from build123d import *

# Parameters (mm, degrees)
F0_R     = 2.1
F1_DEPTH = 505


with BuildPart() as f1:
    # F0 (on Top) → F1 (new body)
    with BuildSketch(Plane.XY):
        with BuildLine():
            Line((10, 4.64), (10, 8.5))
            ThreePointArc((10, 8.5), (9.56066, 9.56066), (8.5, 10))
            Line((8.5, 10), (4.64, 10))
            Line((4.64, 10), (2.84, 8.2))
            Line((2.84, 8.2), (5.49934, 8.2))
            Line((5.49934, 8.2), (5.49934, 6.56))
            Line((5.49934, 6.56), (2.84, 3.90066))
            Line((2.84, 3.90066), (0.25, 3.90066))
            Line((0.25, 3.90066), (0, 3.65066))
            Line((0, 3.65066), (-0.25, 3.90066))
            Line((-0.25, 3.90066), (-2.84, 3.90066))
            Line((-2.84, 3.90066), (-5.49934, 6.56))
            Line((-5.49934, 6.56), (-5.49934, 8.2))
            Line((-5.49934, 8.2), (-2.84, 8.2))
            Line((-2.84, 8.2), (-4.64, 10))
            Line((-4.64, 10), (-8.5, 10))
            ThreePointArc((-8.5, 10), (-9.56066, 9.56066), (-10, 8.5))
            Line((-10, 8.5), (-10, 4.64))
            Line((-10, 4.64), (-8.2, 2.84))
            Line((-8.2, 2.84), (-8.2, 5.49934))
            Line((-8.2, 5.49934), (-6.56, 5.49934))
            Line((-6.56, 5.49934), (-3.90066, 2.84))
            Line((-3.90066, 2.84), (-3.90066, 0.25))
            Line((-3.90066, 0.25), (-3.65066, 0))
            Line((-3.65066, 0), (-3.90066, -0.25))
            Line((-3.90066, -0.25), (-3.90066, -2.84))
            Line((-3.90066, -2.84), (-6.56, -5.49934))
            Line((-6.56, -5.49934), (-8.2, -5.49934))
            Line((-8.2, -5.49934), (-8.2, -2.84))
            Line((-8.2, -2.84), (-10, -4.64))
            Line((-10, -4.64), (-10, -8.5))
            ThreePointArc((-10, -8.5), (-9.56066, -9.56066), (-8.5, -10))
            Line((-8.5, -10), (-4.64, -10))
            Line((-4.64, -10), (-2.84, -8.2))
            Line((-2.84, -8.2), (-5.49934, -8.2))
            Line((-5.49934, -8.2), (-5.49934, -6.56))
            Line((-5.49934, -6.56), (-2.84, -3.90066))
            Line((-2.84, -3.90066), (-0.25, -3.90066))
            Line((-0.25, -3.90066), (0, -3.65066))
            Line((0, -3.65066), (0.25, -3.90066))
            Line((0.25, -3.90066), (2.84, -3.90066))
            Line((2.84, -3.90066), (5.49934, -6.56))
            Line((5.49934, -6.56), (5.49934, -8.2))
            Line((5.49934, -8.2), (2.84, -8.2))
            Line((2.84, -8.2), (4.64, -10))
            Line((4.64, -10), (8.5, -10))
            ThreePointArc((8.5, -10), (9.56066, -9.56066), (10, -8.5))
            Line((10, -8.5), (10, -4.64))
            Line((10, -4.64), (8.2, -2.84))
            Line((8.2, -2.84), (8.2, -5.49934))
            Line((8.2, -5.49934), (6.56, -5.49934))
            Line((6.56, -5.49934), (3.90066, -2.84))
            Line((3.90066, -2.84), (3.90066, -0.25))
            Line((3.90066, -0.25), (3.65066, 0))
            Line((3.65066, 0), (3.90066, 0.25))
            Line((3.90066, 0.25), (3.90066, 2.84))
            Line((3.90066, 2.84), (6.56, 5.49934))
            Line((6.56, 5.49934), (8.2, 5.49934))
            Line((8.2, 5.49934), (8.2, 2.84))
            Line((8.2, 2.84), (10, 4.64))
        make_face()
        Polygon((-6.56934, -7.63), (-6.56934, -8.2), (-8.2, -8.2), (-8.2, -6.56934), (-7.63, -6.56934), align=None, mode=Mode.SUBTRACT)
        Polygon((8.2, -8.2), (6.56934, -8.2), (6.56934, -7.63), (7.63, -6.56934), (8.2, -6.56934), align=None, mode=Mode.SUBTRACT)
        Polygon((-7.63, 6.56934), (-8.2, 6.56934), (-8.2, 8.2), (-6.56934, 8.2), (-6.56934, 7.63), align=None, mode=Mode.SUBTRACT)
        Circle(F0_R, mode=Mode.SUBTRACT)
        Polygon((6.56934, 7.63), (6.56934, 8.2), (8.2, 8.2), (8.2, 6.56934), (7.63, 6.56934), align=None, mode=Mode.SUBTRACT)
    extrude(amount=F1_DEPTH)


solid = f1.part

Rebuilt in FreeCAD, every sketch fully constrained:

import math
import FreeCAD as App
import Part
import Sketcher

V = App.Vector
Q = App.Units.Quantity


def add_polygon(sketch, points):
    """Adds a closed chain of lines whose ends are joined by coincident constraints."""
    first, n = sketch.GeometryCount, len(points)
    for a, b in zip(points, points[1:] + points[:1]):
        sketch.addGeometry(Part.LineSegment(App.Vector(*a, 0), App.Vector(*b, 0)), False)
    for i in range(n):
        sketch.addConstraint(Sketcher.Constraint("Coincident", first + i, 2, first + (i + 1) % n, 1))

doc = App.newDocument("Part")
body = doc.addObject("PartDesign::Body", "Body")

# Sketch on XY plane
sketch1 = body.newObject("Sketcher::SketchObject", "Sketch")
sketch1.AttachmentSupport = (doc.getObject("XY_Plane"), [""])
sketch1.MapMode = "FlatFace"
sketch1.addGeometry(Part.LineSegment(V(10, 4.64, 0), V(10, 8.5, 0)), False)  # 0
sketch1.addGeometry(Part.ArcOfCircle(Part.Circle(V(8.5, 8.5, 0), V(0, 0, 1), 1.5), math.radians(0), math.radians(90)), False)  # 1
sketch1.addGeometry(Part.LineSegment(V(8.5, 10, 0), V(4.64, 10, 0)), False)  # 2
sketch1.addGeometry(Part.LineSegment(V(4.64, 10, 0), V(2.84, 8.2, 0)), False)  # 3
sketch1.addGeometry(Part.LineSegment(V(2.84, 8.2, 0), V(5.5, 8.2, 0)), False)  # 4
sketch1.addGeometry(Part.LineSegment(V(5.5, 8.2, 0), V(5.5, 6.56, 0)), False)  # 5
sketch1.addGeometry(Part.LineSegment(V(5.5, 6.56, 0), V(2.84, 3.9, 0)), False)  # 6
sketch1.addGeometry(Part.LineSegment(V(2.84, 3.9, 0), V(0.25, 3.9, 0)), False)  # 7
sketch1.addGeometry(Part.LineSegment(V(0.25, 3.9, 0), V(0, 3.65, 0)), False)  # 8
sketch1.addGeometry(Part.LineSegment(V(0, 3.65, 0), V(-0.25, 3.9, 0)), False)  # 9
sketch1.addGeometry(Part.LineSegment(V(-0.25, 3.9, 0), V(-2.84, 3.9, 0)), False)  # 10
sketch1.addGeometry(Part.LineSegment(V(-2.84, 3.9, 0), V(-5.5, 6.56, 0)), False)  # 11
sketch1.addGeometry(Part.LineSegment(V(-5.5, 6.56, 0), V(-5.5, 8.2, 0)), False)  # 12
sketch1.addGeometry(Part.LineSegment(V(-5.5, 8.2, 0), V(-2.84, 8.2, 0)), False)  # 13
sketch1.addGeometry(Part.LineSegment(V(-2.84, 8.2, 0), V(-4.64, 10, 0)), False)  # 14
sketch1.addGeometry(Part.LineSegment(V(-4.64, 10, 0), V(-8.5, 10, 0)), False)  # 15
sketch1.addGeometry(Part.ArcOfCircle(Part.Circle(V(-8.5, 8.5, 0), V(0, 0, 1), 1.5), math.radians(90), math.radians(180)), False)  # 16
sketch1.addGeometry(Part.LineSegment(V(-10, 8.5, 0), V(-10, 4.64, 0)), False)  # 17
sketch1.addGeometry(Part.LineSegment(V(-10, 4.64, 0), V(-8.2, 2.84, 0)), False)  # 18
sketch1.addGeometry(Part.LineSegment(V(-8.2, 2.84, 0), V(-8.2, 5.5, 0)), False)  # 19
sketch1.addGeometry(Part.LineSegment(V(-8.2, 5.5, 0), V(-6.56, 5.5, 0)), False)  # 20
sketch1.addGeometry(Part.LineSegment(V(-6.56, 5.5, 0), V(-3.9, 2.84, 0)), False)  # 21
sketch1.addGeometry(Part.LineSegment(V(-3.9, 2.84, 0), V(-3.9, 0.25, 0)), False)  # 22
sketch1.addGeometry(Part.LineSegment(V(-3.9, 0.25, 0), V(-3.65, 0, 0)), False)  # 23
sketch1.addGeometry(Part.LineSegment(V(-3.65, 0, 0), V(-3.9, -0.25, 0)), False)  # 24
sketch1.addGeometry(Part.LineSegment(V(-3.9, -0.25, 0), V(-3.9, -2.84, 0)), False)  # 25
sketch1.addGeometry(Part.LineSegment(V(-3.9, -2.84, 0), V(-6.56, -5.5, 0)), False)  # 26
sketch1.addGeometry(Part.LineSegment(V(-6.56, -5.5, 0), V(-8.2, -5.5, 0)), False)  # 27
sketch1.addGeometry(Part.LineSegment(V(-8.2, -5.5, 0), V(-8.2, -2.84, 0)), False)  # 28
sketch1.addGeometry(Part.LineSegment(V(-8.2, -2.84, 0), V(-10, -4.64, 0)), False)  # 29
sketch1.addGeometry(Part.LineSegment(V(-10, -4.64, 0), V(-10, -8.5, 0)), False)  # 30
sketch1.addGeometry(Part.ArcOfCircle(Part.Circle(V(-8.5, -8.5, 0), V(0, 0, 1), 1.5), math.radians(-180), math.radians(-90)), False)  # 31
sketch1.addGeometry(Part.LineSegment(V(-8.5, -10, 0), V(-4.64, -10, 0)), False)  # 32
sketch1.addGeometry(Part.LineSegment(V(-4.64, -10, 0), V(-2.84, -8.2, 0)), False)  # 33
sketch1.addGeometry(Part.LineSegment(V(-2.84, -8.2, 0), V(-5.5, -8.2, 0)), False)  # 34
sketch1.addGeometry(Part.LineSegment(V(-5.5, -8.2, 0), V(-5.5, -6.56, 0)), False)  # 35
sketch1.addGeometry(Part.LineSegment(V(-5.5, -6.56, 0), V(-2.84, -3.9, 0)), False)  # 36
sketch1.addGeometry(Part.LineSegment(V(-2.84, -3.9, 0), V(-0.25, -3.9, 0)), False)  # 37
sketch1.addGeometry(Part.LineSegment(V(-0.25, -3.9, 0), V(0, -3.65, 0)), False)  # 38
sketch1.addGeometry(Part.LineSegment(V(0, -3.65, 0), V(0.25, -3.9, 0)), False)  # 39
sketch1.addGeometry(Part.LineSegment(V(0.25, -3.9, 0), V(2.84, -3.9, 0)), False)  # 40
sketch1.addGeometry(Part.LineSegment(V(2.84, -3.9, 0), V(5.5, -6.56, 0)), False)  # 41
sketch1.addGeometry(Part.LineSegment(V(5.5, -6.56, 0), V(5.5, -8.2, 0)), False)  # 42
sketch1.addGeometry(Part.LineSegment(V(5.5, -8.2, 0), V(2.84, -8.2, 0)), False)  # 43
sketch1.addGeometry(Part.LineSegment(V(2.84, -8.2, 0), V(4.64, -10, 0)), False)  # 44
sketch1.addGeometry(Part.LineSegment(V(4.64, -10, 0), V(8.5, -10, 0)), False)  # 45
sketch1.addGeometry(Part.ArcOfCircle(Part.Circle(V(8.5, -8.5, 0), V(0, 0, 1), 1.5), math.radians(-90), math.radians(0)), False)  # 46
sketch1.addGeometry(Part.LineSegment(V(10, -8.5, 0), V(10, -4.64, 0)), False)  # 47
sketch1.addGeometry(Part.LineSegment(V(10, -4.64, 0), V(8.2, -2.84, 0)), False)  # 48
sketch1.addGeometry(Part.LineSegment(V(8.2, -2.84, 0), V(8.2, -5.5, 0)), False)  # 49
sketch1.addGeometry(Part.LineSegment(V(8.2, -5.5, 0), V(6.56, -5.5, 0)), False)  # 50
sketch1.addGeometry(Part.LineSegment(V(6.56, -5.5, 0), V(3.9, -2.84, 0)), False)  # 51
sketch1.addGeometry(Part.LineSegment(V(3.9, -2.84, 0), V(3.9, -0.25, 0)), False)  # 52
sketch1.addGeometry(Part.LineSegment(V(3.9, -0.25, 0), V(3.65, 0, 0)), False)  # 53
sketch1.addGeometry(Part.LineSegment(V(3.65, 0, 0), V(3.9, 0.25, 0)), False)  # 54
sketch1.addGeometry(Part.LineSegment(V(3.9, 0.25, 0), V(3.9, 2.84, 0)), False)  # 55
sketch1.addGeometry(Part.LineSegment(V(3.9, 2.84, 0), V(6.56, 5.5, 0)), False)  # 56
sketch1.addGeometry(Part.LineSegment(V(6.56, 5.5, 0), V(8.2, 5.5, 0)), False)  # 57
sketch1.addGeometry(Part.LineSegment(V(8.2, 5.5, 0), V(8.2, 2.84, 0)), False)  # 58
sketch1.addGeometry(Part.LineSegment(V(8.2, 2.84, 0), V(10, 4.64, 0)), False)  # 59
add_polygon(sketch1, [(-7.63, -6.57), (-6.57, -7.63), (-6.57, -8.2), (-8.2, -8.2), (-8.2, -6.57)])  # lines 60-64
add_polygon(sketch1, [(8.2, -6.57), (8.2, -8.2), (6.57, -8.2), (6.57, -7.63), (7.63, -6.57)])  # lines 65-69
add_polygon(sketch1, [(-6.57, 7.63), (-7.63, 6.57), (-8.2, 6.57), (-8.2, 8.2), (-6.57, 8.2)])  # lines 70-74
sketch1.addGeometry(Part.Circle(V(0, 0, 0), V(0, 0, 1), 2.1), False)  # 75
add_polygon(sketch1, [(7.63, 6.57), (6.57, 7.63), (6.57, 8.2), (8.2, 8.2), (8.2, 6.57)])  # lines 76-80
sketch1.addConstraint([
    Sketcher.Constraint("Tangent", 0, 2, 1, 1),
    Sketcher.Constraint("Tangent", 1, 2, 2, 1),
    Sketcher.Constraint("Coincident", 2, 2, 3, 1),
    Sketcher.Constraint("Coincident", 3, 2, 4, 1),
    Sketcher.Constraint("Coincident", 4, 2, 5, 1),
    Sketcher.Constraint("Coincident", 5, 2, 6, 1),
    Sketcher.Constraint("Coincident", 6, 2, 7, 1),
    Sketcher.Constraint("Coincident", 7, 2, 8, 1),
    Sketcher.Constraint("Coincident", 8, 2, 9, 1),
    Sketcher.Constraint("Coincident", 9, 2, 10, 1),
    Sketcher.Constraint("Coincident", 10, 2, 11, 1),
    Sketcher.Constraint("Coincident", 11, 2, 12, 1),
    Sketcher.Constraint("Coincident", 12, 2, 13, 1),
    Sketcher.Constraint("Coincident", 13, 2, 14, 1),
    Sketcher.Constraint("Coincident", 14, 2, 15, 1),
    Sketcher.Constraint("Tangent", 15, 2, 16, 1),
    Sketcher.Constraint("Tangent", 16, 2, 17, 1),
    Sketcher.Constraint("Coincident", 17, 2, 18, 1),
    Sketcher.Constraint("Coincident", 18, 2, 19, 1),
    Sketcher.Constraint("Coincident", 19, 2, 20, 1),
    Sketcher.Constraint("Coincident", 20, 2, 21, 1),
    Sketcher.Constraint("Coincident", 21, 2, 22, 1),
    Sketcher.Constraint("Coincident", 22, 2, 23, 1),
    Sketcher.Constraint("Coincident", 23, 2, 24, 1),
    Sketcher.Constraint("Coincident", 24, 2, 25, 1),
    Sketcher.Constraint("Coincident", 25, 2, 26, 1),
    Sketcher.Constraint("Coincident", 26, 2, 27, 1),
    Sketcher.Constraint("Coincident", 27, 2, 28, 1),
    Sketcher.Constraint("Coincident", 28, 2, 29, 1),
    Sketcher.Constraint("Coincident", 29, 2, 30, 1),
    Sketcher.Constraint("Tangent", 30, 2, 31, 1),
    Sketcher.Constraint("Tangent", 31, 2, 32, 1),
    Sketcher.Constraint("Coincident", 32, 2, 33, 1),
    Sketcher.Constraint("Coincident", 33, 2, 34, 1),
    Sketcher.Constraint("Coincident", 34, 2, 35, 1),
    Sketcher.Constraint("Coincident", 35, 2, 36, 1),
    Sketcher.Constraint("Coincident", 36, 2, 37, 1),
    Sketcher.Constraint("Coincident", 37, 2, 38, 1),
    Sketcher.Constraint("Coincident", 38, 2, 39, 1),
    Sketcher.Constraint("Coincident", 39, 2, 40, 1),
    Sketcher.Constraint("Coincident", 40, 2, 41, 1),
    Sketcher.Constraint("Coincident", 41, 2, 42, 1),
    Sketcher.Constraint("Coincident", 42, 2, 43, 1),
    Sketcher.Constraint("Coincident", 43, 2, 44, 1),
    Sketcher.Constraint("Coincident", 44, 2, 45, 1),
    Sketcher.Constraint("Tangent", 45, 2, 46, 1),
    Sketcher.Constraint("Tangent", 46, 2, 47, 1),
    Sketcher.Constraint("Coincident", 47, 2, 48, 1),
    Sketcher.Constraint("Coincident", 48, 2, 49, 1),
    Sketcher.Constraint("Coincident", 49, 2, 50, 1),
    Sketcher.Constraint("Coincident", 50, 2, 51, 1),
    Sketcher.Constraint("Coincident", 51, 2, 52, 1),
    Sketcher.Constraint("Coincident", 52, 2, 53, 1),
    Sketcher.Constraint("Coincident", 53, 2, 54, 1),
    Sketcher.Constraint("Coincident", 54, 2, 55, 1),
    Sketcher.Constraint("Coincident", 55, 2, 56, 1),
    Sketcher.Constraint("Coincident", 56, 2, 57, 1),
    Sketcher.Constraint("Coincident", 57, 2, 58, 1),
    Sketcher.Constraint("Coincident", 58, 2, 59, 1),
    Sketcher.Constraint("Coincident", 59, 2, 0, 1),
    Sketcher.Constraint("Vertical", 0),
    Sketcher.Constraint("Horizontal", 2),
    Sketcher.Constraint("Horizontal", 4),
    Sketcher.Constraint("Vertical", 5),
    Sketcher.Constraint("Horizontal", 7),
    Sketcher.Constraint("Horizontal", 10),
    Sketcher.Constraint("Vertical", 12),
    Sketcher.Constraint("Horizontal", 13),
    Sketcher.Constraint("Horizontal", 15),
    Sketcher.Constraint("Vertical", 17),
    Sketcher.Constraint("Vertical", 19),
    Sketcher.Constraint("Horizontal", 20),
    Sketcher.Constraint("Vertical", 22),
    Sketcher.Constraint("Vertical", 25),
    Sketcher.Constraint("Horizontal", 27),
    Sketcher.Constraint("Vertical", 28),
    Sketcher.Constraint("Vertical", 30),
    Sketcher.Constraint("Horizontal", 32),
    Sketcher.Constraint("Horizontal", 34),
    Sketcher.Constraint("Vertical", 35),
    Sketcher.Constraint("Horizontal", 37),
    Sketcher.Constraint("Horizontal", 40),
    Sketcher.Constraint("Vertical", 42),
    Sketcher.Constraint("Horizontal", 43),
    Sketcher.Constraint("Horizontal", 45),
    Sketcher.Constraint("Vertical", 47),
    Sketcher.Constraint("Vertical", 49),
    Sketcher.Constraint("Horizontal", 50),
    Sketcher.Constraint("Vertical", 52),
    Sketcher.Constraint("Vertical", 55),
    Sketcher.Constraint("Horizontal", 57),
    Sketcher.Constraint("Vertical", 58),
    Sketcher.Constraint("Vertical", 61),
    Sketcher.Constraint("Horizontal", 62),
    Sketcher.Constraint("Vertical", 63),
    Sketcher.Constraint("Horizontal", 64),
    Sketcher.Constraint("Vertical", 65),
    Sketcher.Constraint("Horizontal", 66),
    Sketcher.Constraint("Vertical", 67),
    Sketcher.Constraint("Horizontal", 69),
    Sketcher.Constraint("Horizontal", 71),
    Sketcher.Constraint("Vertical", 72),
    Sketcher.Constraint("Horizontal", 73),
    Sketcher.Constraint("Vertical", 74),
    Sketcher.Constraint("Vertical", 77),
    Sketcher.Constraint("Horizontal", 78),
    Sketcher.Constraint("Vertical", 79),
    Sketcher.Constraint("Horizontal", 80),
    Sketcher.Constraint("Coincident", 75, 3, -1, 1),
    Sketcher.Constraint("Equal", 1, 16),
    Sketcher.Constraint("Equal", 16, 31),
    Sketcher.Constraint("Equal", 31, 46),
    Sketcher.Constraint("Symmetric", 1, 3, 31, 3, -1, 1),
    Sketcher.Constraint("Symmetric", 16, 3, 46, 3, -1, 1),
    Sketcher.Constraint("Symmetric", 3, 2, 33, 2, -1, 1),
    Sketcher.Constraint("Symmetric", 5, 2, 35, 2, -1, 1),
    Sketcher.Constraint("Symmetric", 6, 2, 36, 2, -1, 1),
    Sketcher.Constraint("Symmetric", 8, 2, 38, 2, -1, 1),
    Sketcher.Constraint("Symmetric", 9, 2, 39, 2, -1, 1),
    Sketcher.Constraint("Symmetric", 11, 2, 41, 2, -1, 1),
    Sketcher.Constraint("Symmetric", 13, 2, 43, 2, -1, 1),
    Sketcher.Constraint("Symmetric", 18, 2, 48, 2, -1, 1),
    Sketcher.Constraint("Symmetric", 20, 2, 50, 2, -1, 1),
    Sketcher.Constraint("Symmetric", 21, 2, 51, 2, -1, 1),
    Sketcher.Constraint("Symmetric", 23, 2, 53, 2, -1, 1),
    Sketcher.Constraint("Symmetric", 24, 2, 54, 2, -1, 1),
    Sketcher.Constraint("Symmetric", 26, 2, 56, 2, -1, 1),
    Sketcher.Constraint("Symmetric", 28, 2, 58, 2, -1, 1),
    Sketcher.Constraint("Symmetric", 68, 2, 70, 2, -1, 1),
    Sketcher.Constraint("Symmetric", 65, 2, 72, 2, -1, 1),
    Sketcher.Constraint("Symmetric", 67, 2, 74, 2, -1, 1),
    Sketcher.Constraint("Symmetric", 60, 2, 76, 2, -1, 1),
    Sketcher.Constraint("Symmetric", 62, 2, 78, 2, -1, 1),
    Sketcher.Constraint("Symmetric", 64, 2, 80, 2, -1, 1),
    Sketcher.Constraint("Symmetric", 1, 3, 16, 3, -2),
    Sketcher.Constraint("Symmetric", 7, 2, 9, 2, -2),
    Sketcher.Constraint("Symmetric", 5, 2, 11, 2, -2),
    Sketcher.Constraint("Symmetric", 3, 2, 13, 2, -2),
    Sketcher.Constraint("Symmetric", 28, 2, 48, 2, -2),
    Sketcher.Constraint("Symmetric", 26, 2, 50, 2, -2),
    Sketcher.Constraint("Symmetric", 25, 2, 51, 2, -2),
    Sketcher.Constraint("Symmetric", 62, 2, 65, 2, -2),
    Sketcher.Constraint("Symmetric", 60, 2, 67, 2, -2),
    Sketcher.Constraint("Symmetric", 64, 2, 68, 2, -2),
    Sketcher.Constraint("PointOnObject", 8, 2, -2),
    Sketcher.Constraint("PointOnObject", 23, 2, -1),
    Sketcher.Constraint("Parallel", 3, 6),
    Sketcher.Constraint("Parallel", 6, 8),
    Sketcher.Constraint("Perpendicular", 8, 9),
    Sketcher.Constraint("Parallel", 9, 11),
    Sketcher.Constraint("Parallel", 11, 14),
    Sketcher.Constraint("Parallel", 14, 18),
    Sketcher.Constraint("Parallel", 18, 21),
    Sketcher.Constraint("Parallel", 21, 23),
    Sketcher.Constraint("Perpendicular", 23, 24),
    Sketcher.Constraint("Parallel", 26, 29),
    Sketcher.Constraint("Parallel", 29, 33),
    Sketcher.Constraint("Parallel", 36, 38),
    Sketcher.Constraint("Parallel", 39, 41),
    Sketcher.Constraint("Parallel", 41, 44),
    Sketcher.Constraint("Parallel", 44, 48),
    Sketcher.Constraint("Parallel", 51, 53),
    Sketcher.Constraint("Parallel", 54, 56),
    Sketcher.Constraint("Parallel", 56, 59),
    Sketcher.Constraint("Perpendicular", 59, 60),
    Sketcher.Constraint("Horizontal", 18, 2, 21, 2),
    Sketcher.Constraint("Horizontal", 43, 2, 61, 2),
    Sketcher.Constraint("Vertical", 3, 2, 6, 2),
    Sketcher.Constraint("Vertical", 28, 2, 62, 2),
    Sketcher.Constraint("Equal", 45, 0),
    Sketcher.Constraint("Equal", 57, 5),
    Sketcher.Constraint("Equal", 43, 19),
    Sketcher.Constraint("Equal", 40, 22),
    Sketcher.Constraint("Equal", 80, 61),
    Sketcher.Constraint("Equal", 14, 18),
    Sketcher.Constraint("Equal", 9, 23),
    Sketcher.Constraint("Diameter", 75, Q("4.2 mm")),
    Sketcher.Constraint("Radius", 1, Q("1.500001 mm")),
    Sketcher.Constraint("DistanceX", -1, 1, 0, 2, Q("10 mm")),
    Sketcher.Constraint("Distance", 60, Q("1.5 mm")),
    Sketcher.Constraint("DistanceX", 2, 2, 2, 1, Q("3.86 mm")),
    Sketcher.Constraint("DistanceX", 7, 2, 7, 1, Q("2.59 mm")),
    Sketcher.Constraint("DistanceX", 20, 1, 20, 2, Q("1.64 mm")),
    Sketcher.Constraint("DistanceX", 64, 1, 64, 2, Q("0.57 mm")),
    Sketcher.Constraint("DistanceY", -1, 1, 3, 2, Q("8.2 mm")),
    Sketcher.Constraint("DistanceX", 4, 1, 4, 2, Q("2.65934 mm")),
])
pad1 = body.newObject("PartDesign::Pad", "Pad")
pad1.Profile = sketch1
pad1.Length = 505

doc.recompute()
